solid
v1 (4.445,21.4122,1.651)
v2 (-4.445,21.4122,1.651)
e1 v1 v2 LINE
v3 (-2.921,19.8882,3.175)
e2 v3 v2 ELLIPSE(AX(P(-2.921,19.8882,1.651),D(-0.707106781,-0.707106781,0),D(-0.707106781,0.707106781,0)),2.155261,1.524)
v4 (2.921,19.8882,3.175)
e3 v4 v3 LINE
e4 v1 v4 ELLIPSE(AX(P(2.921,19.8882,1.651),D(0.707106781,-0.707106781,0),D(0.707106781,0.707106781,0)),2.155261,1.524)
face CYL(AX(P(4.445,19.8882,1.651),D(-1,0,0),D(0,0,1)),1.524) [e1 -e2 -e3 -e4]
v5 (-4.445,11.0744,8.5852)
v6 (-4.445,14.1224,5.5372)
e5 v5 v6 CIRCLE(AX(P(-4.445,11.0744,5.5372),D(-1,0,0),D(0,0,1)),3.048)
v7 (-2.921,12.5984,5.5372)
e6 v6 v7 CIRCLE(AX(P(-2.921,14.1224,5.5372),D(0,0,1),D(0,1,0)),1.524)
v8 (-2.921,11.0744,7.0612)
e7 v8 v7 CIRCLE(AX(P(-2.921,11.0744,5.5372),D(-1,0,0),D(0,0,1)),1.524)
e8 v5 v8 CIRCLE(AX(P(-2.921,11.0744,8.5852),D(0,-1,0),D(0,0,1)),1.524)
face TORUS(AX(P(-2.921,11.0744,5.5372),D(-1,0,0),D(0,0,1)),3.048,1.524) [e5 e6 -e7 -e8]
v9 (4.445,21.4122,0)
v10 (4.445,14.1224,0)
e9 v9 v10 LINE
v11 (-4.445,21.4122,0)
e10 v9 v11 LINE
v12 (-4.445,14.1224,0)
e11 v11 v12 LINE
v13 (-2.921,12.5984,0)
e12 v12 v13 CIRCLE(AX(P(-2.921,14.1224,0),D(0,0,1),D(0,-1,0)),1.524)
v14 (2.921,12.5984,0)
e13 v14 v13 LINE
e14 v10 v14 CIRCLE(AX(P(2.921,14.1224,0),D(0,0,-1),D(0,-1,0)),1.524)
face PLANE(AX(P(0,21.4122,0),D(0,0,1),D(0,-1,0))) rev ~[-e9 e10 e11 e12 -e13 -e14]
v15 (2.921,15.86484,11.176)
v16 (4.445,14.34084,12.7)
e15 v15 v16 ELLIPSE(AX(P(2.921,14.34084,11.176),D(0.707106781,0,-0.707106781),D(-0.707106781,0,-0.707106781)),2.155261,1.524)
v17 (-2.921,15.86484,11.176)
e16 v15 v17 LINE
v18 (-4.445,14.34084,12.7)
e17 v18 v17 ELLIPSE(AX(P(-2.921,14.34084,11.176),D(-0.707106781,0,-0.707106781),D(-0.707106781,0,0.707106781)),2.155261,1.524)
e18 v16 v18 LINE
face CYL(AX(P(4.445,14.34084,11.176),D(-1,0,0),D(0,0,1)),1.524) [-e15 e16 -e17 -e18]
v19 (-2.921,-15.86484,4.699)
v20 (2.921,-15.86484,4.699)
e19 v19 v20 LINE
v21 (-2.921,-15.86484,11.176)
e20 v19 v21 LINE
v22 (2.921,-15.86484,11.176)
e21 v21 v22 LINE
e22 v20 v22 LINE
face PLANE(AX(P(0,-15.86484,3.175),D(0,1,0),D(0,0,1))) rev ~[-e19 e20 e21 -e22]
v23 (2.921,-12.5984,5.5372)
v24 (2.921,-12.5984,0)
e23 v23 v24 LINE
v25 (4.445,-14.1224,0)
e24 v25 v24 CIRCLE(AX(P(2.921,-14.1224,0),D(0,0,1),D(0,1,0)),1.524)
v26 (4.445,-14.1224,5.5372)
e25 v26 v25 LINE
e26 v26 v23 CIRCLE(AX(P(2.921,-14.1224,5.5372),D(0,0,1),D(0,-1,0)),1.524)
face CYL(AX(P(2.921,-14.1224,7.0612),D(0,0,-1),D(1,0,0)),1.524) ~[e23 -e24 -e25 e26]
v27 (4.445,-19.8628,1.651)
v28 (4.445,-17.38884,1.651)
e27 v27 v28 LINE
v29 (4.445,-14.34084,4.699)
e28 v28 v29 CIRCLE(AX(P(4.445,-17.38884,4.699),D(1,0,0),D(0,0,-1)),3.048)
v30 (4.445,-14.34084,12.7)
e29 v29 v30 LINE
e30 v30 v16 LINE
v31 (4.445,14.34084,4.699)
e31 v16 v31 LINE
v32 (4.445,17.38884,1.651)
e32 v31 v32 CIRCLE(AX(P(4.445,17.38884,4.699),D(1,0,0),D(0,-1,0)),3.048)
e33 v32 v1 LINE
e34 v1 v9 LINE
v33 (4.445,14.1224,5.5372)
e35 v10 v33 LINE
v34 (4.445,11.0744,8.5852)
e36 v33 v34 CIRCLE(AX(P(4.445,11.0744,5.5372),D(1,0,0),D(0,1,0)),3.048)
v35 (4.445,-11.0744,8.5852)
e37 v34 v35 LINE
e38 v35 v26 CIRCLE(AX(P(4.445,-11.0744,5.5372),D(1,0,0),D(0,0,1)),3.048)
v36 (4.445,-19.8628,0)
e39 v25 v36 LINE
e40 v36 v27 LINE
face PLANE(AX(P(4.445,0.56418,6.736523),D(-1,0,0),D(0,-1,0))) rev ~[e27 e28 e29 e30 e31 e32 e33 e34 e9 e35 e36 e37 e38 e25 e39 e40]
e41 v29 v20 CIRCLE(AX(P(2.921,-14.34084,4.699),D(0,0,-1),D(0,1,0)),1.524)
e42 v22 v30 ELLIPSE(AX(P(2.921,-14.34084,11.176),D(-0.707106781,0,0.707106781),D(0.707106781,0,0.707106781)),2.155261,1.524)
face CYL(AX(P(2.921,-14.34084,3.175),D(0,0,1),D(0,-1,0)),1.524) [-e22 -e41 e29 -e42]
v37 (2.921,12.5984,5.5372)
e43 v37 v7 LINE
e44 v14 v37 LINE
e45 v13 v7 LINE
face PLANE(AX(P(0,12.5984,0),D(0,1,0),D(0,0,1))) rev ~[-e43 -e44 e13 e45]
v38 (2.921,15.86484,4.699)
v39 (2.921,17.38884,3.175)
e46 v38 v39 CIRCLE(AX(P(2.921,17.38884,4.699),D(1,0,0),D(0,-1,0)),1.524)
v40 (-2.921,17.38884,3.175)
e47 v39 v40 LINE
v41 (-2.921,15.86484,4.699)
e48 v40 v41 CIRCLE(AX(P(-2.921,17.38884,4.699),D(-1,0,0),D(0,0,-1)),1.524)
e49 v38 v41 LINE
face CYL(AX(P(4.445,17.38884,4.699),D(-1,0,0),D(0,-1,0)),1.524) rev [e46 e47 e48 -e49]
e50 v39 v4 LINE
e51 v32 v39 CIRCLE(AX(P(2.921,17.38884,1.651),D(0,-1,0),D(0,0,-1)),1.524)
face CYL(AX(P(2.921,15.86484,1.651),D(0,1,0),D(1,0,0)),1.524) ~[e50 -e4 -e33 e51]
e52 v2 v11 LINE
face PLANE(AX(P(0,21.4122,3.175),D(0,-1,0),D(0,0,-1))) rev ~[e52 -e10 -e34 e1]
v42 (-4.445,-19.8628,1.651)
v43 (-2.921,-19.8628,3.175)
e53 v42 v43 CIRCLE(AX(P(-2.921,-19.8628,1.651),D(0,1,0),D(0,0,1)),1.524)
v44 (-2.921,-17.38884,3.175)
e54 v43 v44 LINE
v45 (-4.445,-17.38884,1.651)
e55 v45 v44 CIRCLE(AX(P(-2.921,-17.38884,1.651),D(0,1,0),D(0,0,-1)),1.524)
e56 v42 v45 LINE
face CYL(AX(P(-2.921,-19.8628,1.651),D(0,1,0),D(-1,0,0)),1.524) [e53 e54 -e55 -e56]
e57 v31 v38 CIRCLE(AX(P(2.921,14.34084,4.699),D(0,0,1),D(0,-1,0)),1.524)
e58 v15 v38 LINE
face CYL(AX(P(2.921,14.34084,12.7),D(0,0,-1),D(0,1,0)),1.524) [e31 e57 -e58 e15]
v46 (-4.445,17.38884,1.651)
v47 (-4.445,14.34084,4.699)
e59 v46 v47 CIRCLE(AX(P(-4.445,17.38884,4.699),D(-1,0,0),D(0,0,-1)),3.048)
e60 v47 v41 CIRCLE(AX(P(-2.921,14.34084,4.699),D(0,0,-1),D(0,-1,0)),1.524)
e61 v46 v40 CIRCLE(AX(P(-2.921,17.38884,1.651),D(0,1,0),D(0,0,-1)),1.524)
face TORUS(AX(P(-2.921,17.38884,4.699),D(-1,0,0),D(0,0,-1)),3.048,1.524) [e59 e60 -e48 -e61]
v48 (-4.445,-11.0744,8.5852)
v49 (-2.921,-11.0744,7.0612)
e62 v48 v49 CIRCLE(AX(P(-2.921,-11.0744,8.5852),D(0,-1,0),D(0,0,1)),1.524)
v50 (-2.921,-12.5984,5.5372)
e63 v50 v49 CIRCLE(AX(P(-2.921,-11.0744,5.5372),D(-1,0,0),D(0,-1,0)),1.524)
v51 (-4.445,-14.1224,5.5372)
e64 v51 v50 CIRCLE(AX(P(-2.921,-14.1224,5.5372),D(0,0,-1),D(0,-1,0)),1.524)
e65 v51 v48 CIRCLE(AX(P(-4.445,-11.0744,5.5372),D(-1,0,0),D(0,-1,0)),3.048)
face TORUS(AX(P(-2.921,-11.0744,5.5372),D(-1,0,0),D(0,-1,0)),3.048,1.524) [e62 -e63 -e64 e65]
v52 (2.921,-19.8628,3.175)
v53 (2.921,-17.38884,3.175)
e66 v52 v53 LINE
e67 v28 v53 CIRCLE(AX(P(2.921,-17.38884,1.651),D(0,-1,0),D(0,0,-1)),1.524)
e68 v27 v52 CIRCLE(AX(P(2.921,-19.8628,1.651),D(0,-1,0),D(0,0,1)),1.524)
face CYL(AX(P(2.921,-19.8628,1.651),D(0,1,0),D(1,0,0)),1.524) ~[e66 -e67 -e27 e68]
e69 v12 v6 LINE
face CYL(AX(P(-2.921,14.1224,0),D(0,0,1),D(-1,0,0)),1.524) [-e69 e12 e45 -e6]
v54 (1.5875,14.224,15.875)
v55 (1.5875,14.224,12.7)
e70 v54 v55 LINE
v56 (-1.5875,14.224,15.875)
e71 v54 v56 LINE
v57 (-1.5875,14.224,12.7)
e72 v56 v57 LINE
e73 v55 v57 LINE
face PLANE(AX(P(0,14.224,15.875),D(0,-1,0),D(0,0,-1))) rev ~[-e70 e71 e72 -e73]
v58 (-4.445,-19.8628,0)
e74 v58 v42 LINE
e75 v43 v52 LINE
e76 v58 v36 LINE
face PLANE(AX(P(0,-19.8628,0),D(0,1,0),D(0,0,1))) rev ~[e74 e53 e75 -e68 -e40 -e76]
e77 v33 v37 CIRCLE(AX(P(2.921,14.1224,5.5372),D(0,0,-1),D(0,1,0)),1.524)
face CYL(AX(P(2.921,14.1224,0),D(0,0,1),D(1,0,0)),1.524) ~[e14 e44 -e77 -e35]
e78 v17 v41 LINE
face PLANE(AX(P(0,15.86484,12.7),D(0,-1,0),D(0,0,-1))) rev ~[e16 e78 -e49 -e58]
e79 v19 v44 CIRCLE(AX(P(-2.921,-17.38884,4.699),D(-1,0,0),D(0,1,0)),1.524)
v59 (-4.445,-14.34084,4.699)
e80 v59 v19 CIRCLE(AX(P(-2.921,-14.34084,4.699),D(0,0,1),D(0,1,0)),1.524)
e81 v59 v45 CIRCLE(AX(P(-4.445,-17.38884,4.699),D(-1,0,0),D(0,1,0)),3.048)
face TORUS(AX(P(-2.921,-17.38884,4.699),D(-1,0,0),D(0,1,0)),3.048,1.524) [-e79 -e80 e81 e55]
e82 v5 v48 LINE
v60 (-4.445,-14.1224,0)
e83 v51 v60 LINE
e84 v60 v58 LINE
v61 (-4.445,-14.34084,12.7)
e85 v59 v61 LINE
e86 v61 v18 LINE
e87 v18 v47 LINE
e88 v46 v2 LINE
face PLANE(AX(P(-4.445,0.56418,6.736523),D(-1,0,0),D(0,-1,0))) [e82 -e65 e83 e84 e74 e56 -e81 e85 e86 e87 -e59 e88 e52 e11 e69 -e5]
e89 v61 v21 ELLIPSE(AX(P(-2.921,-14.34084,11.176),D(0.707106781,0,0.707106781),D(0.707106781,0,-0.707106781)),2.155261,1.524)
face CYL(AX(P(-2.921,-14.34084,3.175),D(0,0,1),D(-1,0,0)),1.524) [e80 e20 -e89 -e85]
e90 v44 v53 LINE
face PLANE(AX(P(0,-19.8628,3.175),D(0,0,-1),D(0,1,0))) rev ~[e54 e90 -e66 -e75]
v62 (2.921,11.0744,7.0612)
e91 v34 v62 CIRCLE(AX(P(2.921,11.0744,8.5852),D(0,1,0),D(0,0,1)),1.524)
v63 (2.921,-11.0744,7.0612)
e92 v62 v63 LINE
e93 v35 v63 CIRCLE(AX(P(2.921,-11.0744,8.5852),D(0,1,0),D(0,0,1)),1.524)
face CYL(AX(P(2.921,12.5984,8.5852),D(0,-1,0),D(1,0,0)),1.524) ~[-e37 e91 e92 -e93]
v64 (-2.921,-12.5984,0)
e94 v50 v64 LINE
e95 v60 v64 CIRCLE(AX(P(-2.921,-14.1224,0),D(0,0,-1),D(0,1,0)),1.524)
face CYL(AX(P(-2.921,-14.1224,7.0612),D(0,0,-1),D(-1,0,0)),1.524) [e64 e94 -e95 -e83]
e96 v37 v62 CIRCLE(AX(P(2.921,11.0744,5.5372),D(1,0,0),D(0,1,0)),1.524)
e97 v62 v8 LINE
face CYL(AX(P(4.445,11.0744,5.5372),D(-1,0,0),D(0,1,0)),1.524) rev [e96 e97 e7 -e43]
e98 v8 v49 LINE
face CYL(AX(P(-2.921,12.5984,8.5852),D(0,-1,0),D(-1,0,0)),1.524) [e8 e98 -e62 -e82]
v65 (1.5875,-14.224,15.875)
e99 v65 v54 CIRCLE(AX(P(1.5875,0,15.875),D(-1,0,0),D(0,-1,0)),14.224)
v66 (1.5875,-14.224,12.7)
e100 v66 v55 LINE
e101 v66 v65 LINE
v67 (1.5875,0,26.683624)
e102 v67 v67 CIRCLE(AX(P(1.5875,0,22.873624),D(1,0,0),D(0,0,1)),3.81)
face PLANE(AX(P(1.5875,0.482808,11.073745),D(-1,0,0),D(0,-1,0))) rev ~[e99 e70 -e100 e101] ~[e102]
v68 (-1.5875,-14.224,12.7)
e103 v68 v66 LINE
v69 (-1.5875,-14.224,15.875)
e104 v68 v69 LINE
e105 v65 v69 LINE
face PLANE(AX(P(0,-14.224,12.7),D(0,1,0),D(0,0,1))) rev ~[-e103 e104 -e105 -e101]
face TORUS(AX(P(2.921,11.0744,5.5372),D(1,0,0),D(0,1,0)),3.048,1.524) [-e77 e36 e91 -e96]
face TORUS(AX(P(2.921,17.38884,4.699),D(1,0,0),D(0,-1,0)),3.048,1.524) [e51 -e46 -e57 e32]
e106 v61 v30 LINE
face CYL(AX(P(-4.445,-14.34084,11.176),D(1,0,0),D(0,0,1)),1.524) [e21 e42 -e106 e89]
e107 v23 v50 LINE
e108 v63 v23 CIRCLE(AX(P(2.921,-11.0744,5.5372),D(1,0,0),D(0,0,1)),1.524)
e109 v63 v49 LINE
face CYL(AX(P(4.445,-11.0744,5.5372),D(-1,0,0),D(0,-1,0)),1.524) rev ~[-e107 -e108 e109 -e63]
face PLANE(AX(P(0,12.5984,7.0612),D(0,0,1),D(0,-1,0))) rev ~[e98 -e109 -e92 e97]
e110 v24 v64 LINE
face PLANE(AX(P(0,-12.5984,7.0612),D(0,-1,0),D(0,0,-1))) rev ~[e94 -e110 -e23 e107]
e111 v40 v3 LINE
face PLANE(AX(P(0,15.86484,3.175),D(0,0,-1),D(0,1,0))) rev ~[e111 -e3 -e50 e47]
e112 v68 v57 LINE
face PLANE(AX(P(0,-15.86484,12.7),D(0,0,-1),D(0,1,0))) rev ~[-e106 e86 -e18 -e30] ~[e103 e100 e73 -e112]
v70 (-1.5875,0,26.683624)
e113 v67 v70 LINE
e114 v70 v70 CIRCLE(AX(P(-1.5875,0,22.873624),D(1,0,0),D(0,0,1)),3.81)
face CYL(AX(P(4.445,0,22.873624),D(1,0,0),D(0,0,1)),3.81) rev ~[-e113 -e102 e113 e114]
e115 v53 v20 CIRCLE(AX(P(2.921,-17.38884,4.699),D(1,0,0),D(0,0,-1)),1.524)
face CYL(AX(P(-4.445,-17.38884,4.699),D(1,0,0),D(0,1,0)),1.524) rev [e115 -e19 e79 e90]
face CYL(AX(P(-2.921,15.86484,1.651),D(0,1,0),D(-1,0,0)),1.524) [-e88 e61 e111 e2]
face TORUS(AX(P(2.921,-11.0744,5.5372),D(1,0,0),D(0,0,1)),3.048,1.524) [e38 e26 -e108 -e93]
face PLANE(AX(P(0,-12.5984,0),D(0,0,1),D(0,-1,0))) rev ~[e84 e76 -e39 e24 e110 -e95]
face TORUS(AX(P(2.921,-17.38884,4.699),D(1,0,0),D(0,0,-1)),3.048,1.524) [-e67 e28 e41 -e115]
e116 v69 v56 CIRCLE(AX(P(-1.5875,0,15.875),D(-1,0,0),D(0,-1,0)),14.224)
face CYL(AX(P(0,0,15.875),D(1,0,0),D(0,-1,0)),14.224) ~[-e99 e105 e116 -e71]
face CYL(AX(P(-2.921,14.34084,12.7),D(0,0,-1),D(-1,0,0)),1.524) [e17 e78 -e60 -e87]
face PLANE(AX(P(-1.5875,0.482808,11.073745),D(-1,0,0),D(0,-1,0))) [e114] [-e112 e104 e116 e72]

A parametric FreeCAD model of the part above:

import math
import FreeCAD as App
import Part
import Sketcher
Q = App.Units.Quantity


def edges_at(feature, points):
    """Names of the edges that pass closest to the given points."""
    edges = feature.Shape.Edges
    near = lambda p: min(range(len(edges)), key=lambda i: edges[i].distToShape(Part.Vertex(*p))[0])
    return sorted({f"Edge{near(p) + 1}" for p in points})


def add_polygon(sketch, points):
    """Adds a closed chain of lines whose ends are joined by coincident constraints."""
    first, n = sketch.GeometryCount, len(points)
    for a, b in zip(points, points[1:] + points[:1]):
        sketch.addGeometry(Part.LineSegment(App.Vector(*a, 0), App.Vector(*b, 0)), False)
    for i in range(n):
        sketch.addConstraint(Sketcher.Constraint("Coincident", first + i, 2, first + (i + 1) % n, 1))

doc = App.newDocument("Part")
body = doc.addObject("PartDesign::Body", "Body")

# Sketch on YZ plane
sketch1 = doc.addObject("Sketcher::SketchObject", "Sketch")
body.addObject(sketch1)
sketch1.AttachmentSupport = (doc.YZ_Plane, [""])
sketch1.MapMode = "FlatFace"
add_polygon(sketch1, [(-19.9, 3.2), (-19.9, 0), (-12.6, 0), (-12.6, 7.1), (12.6, 7.1), (12.6, 0), (21.4, 0), (21.4, 3.2), (15.9, 3.2), (15.9, 12.7), (-15.9, 12.7), (-15.9, 3.2)])  # lines 0-11
sketch1.addConstraint(Sketcher.Constraint("Vertical", 0))
sketch1.addConstraint(Sketcher.Constraint("Horizontal", 1))
sketch1.addConstraint(Sketcher.Constraint("Vertical", 2))
sketch1.addConstraint(Sketcher.Constraint("Horizontal", 3))
sketch1.addConstraint(Sketcher.Constraint("Vertical", 4))
sketch1.addConstraint(Sketcher.Constraint("Horizontal", 5))
sketch1.addConstraint(Sketcher.Constraint("Vertical", 6))
sketch1.addConstraint(Sketcher.Constraint("Horizontal", 7))
sketch1.addConstraint(Sketcher.Constraint("Vertical", 8))
sketch1.addConstraint(Sketcher.Constraint("Horizontal", 9))
sketch1.addConstraint(Sketcher.Constraint("Vertical", 10))
sketch1.addConstraint(Sketcher.Constraint("Horizontal", 11))
sketch1.addConstraint(Sketcher.Constraint("Symmetric", 1, 2, 4, 2, -1, 1))
sketch1.addConstraint(Sketcher.Constraint("Symmetric", 7, 2, 10, 2, -2))
sketch1.addConstraint(Sketcher.Constraint("PointOnObject", 0, 2, -1))
sketch1.addConstraint(Sketcher.Constraint("DistanceY", -1, 1, 8, 2, Q("0.5 in")))
sketch1.addConstraint(Sketcher.Constraint("DistanceX", 1, 1, 1, 2, Q("0.286 in")))
sketch1.addConstraint(Sketcher.Constraint("DistanceX", 3, 1, 3, 2, Q("0.992 in")))
sketch1.addConstraint(Sketcher.Constraint("DistanceX", 5, 1, 5, 2, Q("0.347 in")))
sketch1.addConstraint(Sketcher.Constraint("DistanceY", 0, 2, 0, 1, Q("0.125 in")))
sketch1.addConstraint(Sketcher.Constraint("DistanceY", 2, 1, 2, 2, Q("0.278 in")))
sketch1.addConstraint(Sketcher.Constraint("DistanceX", 7, 2, 7, 1, Q("0.2184 in")))
pad1 = doc.addObject("PartDesign::Pad", "Pad")
body.addObject(pad1)
pad1.Profile = sketch1
pad1.Length = Q("0.35 in")
pad1.Midplane = True

# Sketch on YZ plane
sketch2 = doc.addObject("Sketcher::SketchObject", "Sketch001")
body.addObject(sketch2)
sketch2.AttachmentSupport = (doc.YZ_Plane, [""])
sketch2.MapMode = "FlatFace"
sketch2.addGeometry(Part.LineSegment(App.Vector(-14.2, 15.9, 0), App.Vector(-14.2, 12.7, 0)), False)
sketch2.addGeometry(Part.LineSegment(App.Vector(-14.2, 12.7, 0), App.Vector(-15.9, 12.7, 0)), False)
sketch2.addGeometry(Part.LineSegment(App.Vector(-15.9, 12.7, 0), App.Vector(-15.9, 3.2, 0)), False)
sketch2.addGeometry(Part.LineSegment(App.Vector(-15.9, 3.2, 0), App.Vector(-19.9, 3.2, 0)), False)
sketch2.addGeometry(Part.LineSegment(App.Vector(-19.9, 3.2, 0), App.Vector(-19.9, 0, 0)), False)
sketch2.addGeometry(Part.LineSegment(App.Vector(-19.9, 0, 0), App.Vector(-12.6, 0, 0)), False)
sketch2.addGeometry(Part.LineSegment(App.Vector(-12.6, 0, 0), App.Vector(-12.6, 7.1, 0)), False)
sketch2.addGeometry(Part.LineSegment(App.Vector(-12.6, 7.1, 0), App.Vector(12.6, 7.1, 0)), False)
sketch2.addGeometry(Part.LineSegment(App.Vector(12.6, 7.1, 0), App.Vector(12.6, 0, 0)), False)
sketch2.addGeometry(Part.LineSegment(App.Vector(12.6, 0, 0), App.Vector(21.4, 0, 0)), False)
sketch2.addGeometry(Part.LineSegment(App.Vector(21.4, 0, 0), App.Vector(21.4, 3.2, 0)), False)
sketch2.addGeometry(Part.LineSegment(App.Vector(21.4, 3.2, 0), App.Vector(15.9, 3.2, 0)), False)
sketch2.addGeometry(Part.LineSegment(App.Vector(15.9, 3.2, 0), App.Vector(15.9, 12.7, 0)), False)
sketch2.addGeometry(Part.LineSegment(App.Vector(15.9, 12.7, 0), App.Vector(14.2, 12.7, 0)), False)
sketch2.addGeometry(Part.LineSegment(App.Vector(14.2, 12.7, 0), App.Vector(14.2, 15.9, 0)), False)
sketch2.addGeometry(Part.ArcOfCircle(Part.Circle(App.Vector(0, 15.9, 0), App.Vector(0, 0, 1), 14.2), math.radians(0), math.radians(180)), False)
sketch2.addConstraint(Sketcher.Constraint("Coincident", 0, 2, 1, 1))
sketch2.addConstraint(Sketcher.Constraint("Coincident", 1, 2, 2, 1))
sketch2.addConstraint(Sketcher.Constraint("Coincident", 2, 2, 3, 1))
sketch2.addConstraint(Sketcher.Constraint("Coincident", 3, 2, 4, 1))
sketch2.addConstraint(Sketcher.Constraint("Coincident", 4, 2, 5, 1))
sketch2.addConstraint(Sketcher.Constraint("Coincident", 5, 2, 6, 1))
sketch2.addConstraint(Sketcher.Constraint("Coincident", 6, 2, 7, 1))
sketch2.addConstraint(Sketcher.Constraint("Coincident", 7, 2, 8, 1))
sketch2.addConstraint(Sketcher.Constraint("Coincident", 8, 2, 9, 1))
sketch2.addConstraint(Sketcher.Constraint("Coincident", 9, 2, 10, 1))
sketch2.addConstraint(Sketcher.Constraint("Coincident", 10, 2, 11, 1))
sketch2.addConstraint(Sketcher.Constraint("Coincident", 11, 2, 12, 1))
sketch2.addConstraint(Sketcher.Constraint("Coincident", 12, 2, 13, 1))
sketch2.addConstraint(Sketcher.Constraint("Coincident", 13, 2, 14, 1))
sketch2.addConstraint(Sketcher.Constraint("Tangent", 14, 2, 15, 1))
sketch2.addConstraint(Sketcher.Constraint("Tangent", 15, 2, 0, 1))
sketch2.addConstraint(Sketcher.Constraint("Vertical", 0))
sketch2.addConstraint(Sketcher.Constraint("Horizontal", 1))
sketch2.addConstraint(Sketcher.Constraint("Vertical", 2))
sketch2.addConstraint(Sketcher.Constraint("Horizontal", 3))
sketch2.addConstraint(Sketcher.Constraint("Vertical", 4))
sketch2.addConstraint(Sketcher.Constraint("Horizontal", 5))
sketch2.addConstraint(Sketcher.Constraint("Vertical", 6))
sketch2.addConstraint(Sketcher.Constraint("Horizontal", 7))
sketch2.addConstraint(Sketcher.Constraint("Vertical", 8))
sketch2.addConstraint(Sketcher.Constraint("Horizontal", 9))
sketch2.addConstraint(Sketcher.Constraint("Vertical", 10))
sketch2.addConstraint(Sketcher.Constraint("Horizontal", 11))
sketch2.addConstraint(Sketcher.Constraint("Vertical", 12))
sketch2.addConstraint(Sketcher.Constraint("Horizontal", 13))
sketch2.addConstraint(Sketcher.Constraint("Vertical", 14))
sketch2.addConstraint(Sketcher.Constraint("Symmetric", 5, 2, 8, 2, -1, 1))
sketch2.addConstraint(Sketcher.Constraint("Symmetric", 2, 2, 11, 2, -2))
sketch2.addConstraint(Sketcher.Constraint("Symmetric", 0, 2, 13, 2, -2))
sketch2.addConstraint(Sketcher.Constraint("PointOnObject", 4, 2, -1))
sketch2.addConstraint(Sketcher.Constraint("Equal", 0, 4))
sketch2.addConstraint(Sketcher.Constraint("Radius", 15, Q("0.56 in")))
sketch2.addConstraint(Sketcher.Constraint("DistanceY", -1, 1, 0, 2, Q("0.5 in")))
sketch2.addConstraint(Sketcher.Constraint("DistanceX", 5, 1, 5, 2, Q("0.286 in")))
sketch2.addConstraint(Sketcher.Constraint("DistanceX", 7, 1, 7, 2, Q("0.992 in")))
sketch2.addConstraint(Sketcher.Constraint("DistanceX", 9, 1, 9, 2, Q("0.347 in")))
sketch2.addConstraint(Sketcher.Constraint("DistanceY", 0, 2, 0, 1, Q("0.125 in")))
sketch2.addConstraint(Sketcher.Constraint("DistanceY", 6, 1, 6, 2, Q("0.278 in")))
sketch2.addConstraint(Sketcher.Constraint("DistanceX", 1, 2, 1, 1, Q("0.0646 in")))
pad2 = doc.addObject("PartDesign::Pad", "Pad001")
body.addObject(pad2)
pad2.Profile = sketch2
pad2.Length = Q("0.125 in")
pad2.Midplane = True

# Sketch on YZ plane
sketch3 = doc.addObject("Sketcher::SketchObject", "Sketch002")
body.addObject(sketch3)
sketch3.AttachmentSupport = (doc.YZ_Plane, [""])
sketch3.MapMode = "FlatFace"
sketch3.AttachmentOffset = App.Placement(App.Vector(0, 0, 0.175 * 25.4), App.Rotation())
sketch3.addGeometry(Part.Circle(App.Vector(0, 22.9, 0), App.Vector(0, 0, 1), 3.8), False)
sketch3.addConstraint(Sketcher.Constraint("PointOnObject", 0, 3, -2))
sketch3.addConstraint(Sketcher.Constraint("Diameter", 0, Q("0.3 in")))
sketch3.addConstraint(Sketcher.Constraint("DistanceY", -1, 1, 0, 3, Q("22.873624 mm")))
pocket1 = doc.addObject("PartDesign::Pocket", "Pocket")
body.addObject(pocket1)
pocket1.Profile = sketch3
pocket1.Length = Q("5 in")
doc.recompute()

fillet = doc.addObject("PartDesign::Fillet", "Fillet")
body.addObject(fillet)
fillet.Base = (pocket1, edges_at(pocket1, [
    (4.445, 15.865, 7.938),
    (4.445, 18.639, 3.175),
    (0, 15.865, 12.7),
    (0, 15.865, 3.175),
    (0, 21.412, 3.175),
    (-4.445, 18.639, 3.175),
    (-4.445, 15.865, 7.938),
]))
fillet.Radius = Q("0.06 in")
doc.recompute()

fillet2 = doc.addObject("PartDesign::Fillet", "Fillet001")
body.addObject(fillet2)
fillet2.Base = (fillet, edges_at(fillet, [
    (4.445, -17.864, 3.175),
    (4.445, -15.865, 7.938),
    (0, -15.865, 3.175),
    (0, -15.865, 12.7),
    (-4.445, -15.865, 7.938),
    (-4.445, -17.864, 3.175),
]))
fillet2.Radius = Q("0.06 in")
doc.recompute()

fillet3 = doc.addObject("PartDesign::Fillet", "Fillet002")
body.addObject(fillet3)
fillet3.Base = (fillet2, edges_at(fillet2, [
    (-4.445, 0, 7.061),
    (4.445, 12.598, 3.531),
    (4.445, 0, 7.061),
    (4.445, -12.598, 3.531),
    (-4.445, 12.598, 3.531),
    (0, 12.598, 7.061),
    (0, -12.598, 7.061),
    (-4.445, -12.598, 3.531),
]))
fillet3.Radius = Q("0.06 in")

doc.recompute()
